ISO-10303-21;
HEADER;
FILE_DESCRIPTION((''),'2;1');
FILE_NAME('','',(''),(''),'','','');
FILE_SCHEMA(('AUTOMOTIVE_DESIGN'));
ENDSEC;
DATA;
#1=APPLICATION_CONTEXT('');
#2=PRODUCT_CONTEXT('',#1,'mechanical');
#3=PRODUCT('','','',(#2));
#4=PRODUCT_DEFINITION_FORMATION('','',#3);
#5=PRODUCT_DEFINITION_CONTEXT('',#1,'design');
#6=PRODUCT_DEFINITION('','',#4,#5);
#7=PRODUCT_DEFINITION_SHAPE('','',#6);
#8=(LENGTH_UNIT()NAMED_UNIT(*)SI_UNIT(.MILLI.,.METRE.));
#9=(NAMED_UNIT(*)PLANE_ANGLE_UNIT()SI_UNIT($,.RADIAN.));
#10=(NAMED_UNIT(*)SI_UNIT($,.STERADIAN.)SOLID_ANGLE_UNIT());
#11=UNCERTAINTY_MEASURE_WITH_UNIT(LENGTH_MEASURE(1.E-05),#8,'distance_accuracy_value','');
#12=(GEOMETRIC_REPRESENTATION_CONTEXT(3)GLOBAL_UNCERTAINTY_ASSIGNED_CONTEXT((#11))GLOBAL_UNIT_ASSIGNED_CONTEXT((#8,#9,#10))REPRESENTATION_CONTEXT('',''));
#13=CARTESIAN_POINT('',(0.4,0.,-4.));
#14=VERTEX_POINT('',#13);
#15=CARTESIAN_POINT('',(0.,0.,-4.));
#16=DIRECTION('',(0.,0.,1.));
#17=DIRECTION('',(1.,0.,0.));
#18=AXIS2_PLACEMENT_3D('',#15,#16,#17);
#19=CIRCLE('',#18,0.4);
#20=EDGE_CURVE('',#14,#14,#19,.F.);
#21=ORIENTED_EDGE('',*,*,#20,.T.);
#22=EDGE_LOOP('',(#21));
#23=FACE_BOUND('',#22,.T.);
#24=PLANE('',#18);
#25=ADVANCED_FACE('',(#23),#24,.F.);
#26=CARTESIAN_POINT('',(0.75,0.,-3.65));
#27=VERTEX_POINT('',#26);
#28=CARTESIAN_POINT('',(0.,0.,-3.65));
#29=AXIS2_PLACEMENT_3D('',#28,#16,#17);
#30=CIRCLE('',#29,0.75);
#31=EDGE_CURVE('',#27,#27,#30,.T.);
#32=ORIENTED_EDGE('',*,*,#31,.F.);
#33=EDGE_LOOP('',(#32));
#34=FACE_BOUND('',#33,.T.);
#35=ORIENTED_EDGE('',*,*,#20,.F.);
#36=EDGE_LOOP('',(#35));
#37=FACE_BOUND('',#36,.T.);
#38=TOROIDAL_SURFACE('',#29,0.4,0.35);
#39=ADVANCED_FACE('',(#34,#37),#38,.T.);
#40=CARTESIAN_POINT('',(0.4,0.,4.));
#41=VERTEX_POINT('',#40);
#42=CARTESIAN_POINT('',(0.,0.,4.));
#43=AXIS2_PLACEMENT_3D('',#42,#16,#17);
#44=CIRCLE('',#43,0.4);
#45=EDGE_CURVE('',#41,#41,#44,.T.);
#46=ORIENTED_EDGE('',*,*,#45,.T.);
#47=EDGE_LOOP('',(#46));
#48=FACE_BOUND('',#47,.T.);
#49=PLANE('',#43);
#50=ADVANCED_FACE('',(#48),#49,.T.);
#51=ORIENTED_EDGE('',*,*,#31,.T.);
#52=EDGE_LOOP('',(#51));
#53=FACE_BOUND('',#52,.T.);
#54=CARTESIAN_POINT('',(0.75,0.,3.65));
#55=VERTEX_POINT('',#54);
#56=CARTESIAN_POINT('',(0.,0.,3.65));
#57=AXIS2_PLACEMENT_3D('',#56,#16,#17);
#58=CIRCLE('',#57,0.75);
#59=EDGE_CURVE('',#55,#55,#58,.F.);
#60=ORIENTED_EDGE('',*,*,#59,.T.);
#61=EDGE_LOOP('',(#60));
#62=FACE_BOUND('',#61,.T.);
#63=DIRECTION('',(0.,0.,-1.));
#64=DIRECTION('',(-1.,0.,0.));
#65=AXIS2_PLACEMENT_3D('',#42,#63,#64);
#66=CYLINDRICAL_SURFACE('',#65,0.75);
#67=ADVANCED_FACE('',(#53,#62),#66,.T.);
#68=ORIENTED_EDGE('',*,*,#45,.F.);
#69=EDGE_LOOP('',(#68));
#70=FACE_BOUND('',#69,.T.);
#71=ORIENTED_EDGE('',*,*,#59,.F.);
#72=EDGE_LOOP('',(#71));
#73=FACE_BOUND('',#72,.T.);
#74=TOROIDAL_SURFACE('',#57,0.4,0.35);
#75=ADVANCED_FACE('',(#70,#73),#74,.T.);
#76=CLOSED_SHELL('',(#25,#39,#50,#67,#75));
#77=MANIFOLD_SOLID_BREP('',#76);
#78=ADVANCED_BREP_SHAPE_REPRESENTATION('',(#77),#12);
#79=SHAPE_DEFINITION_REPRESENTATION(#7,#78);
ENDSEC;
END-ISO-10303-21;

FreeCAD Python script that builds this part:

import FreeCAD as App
import Part
import Sketcher
from FreeCAD import Vector
Q = App.Units.Quantity


def edges_at(feature, points):
    """Names of the edges that pass closest to the given points."""
    edges = feature.Shape.Edges
    near = lambda p: min(range(len(edges)), key=lambda i: edges[i].distToShape(Part.Vertex(*p))[0])
    return sorted({f"Edge{near(p) + 1}" for p in points})

doc = App.newDocument("Part")
body = doc.addObject("PartDesign::Body", "Body")

# Sketch on XY plane
sketch1 = body.newObject("Sketcher::SketchObject", "Sketch")
sketch1.AttachmentSupport = (doc.getObject("XY_Plane"), [""])
sketch1.MapMode = "FlatFace"
sketch1.addGeometry(Part.Circle(Vector(0, 0, 0), Vector(0, 0, 1), 0.8), False)
sketch1.addConstraint([
    Sketcher.Constraint("Coincident", 0, 3, -1, 1),
    Sketcher.Constraint("Diameter", 0, Q("1.5 mm")),
])
pad1 = body.newObject("PartDesign::Pad", "Pad")
pad1.Profile = sketch1
pad1.Length = 8
pad1.Midplane = True
doc.recompute()

fillet = body.newObject("PartDesign::Fillet", "Fillet")
fillet.Base = (pad1, edges_at(pad1, [(-0.75, 0, -4), (-0.75, 0, 4)]))
fillet.Radius = 0.35

doc.recompute()
